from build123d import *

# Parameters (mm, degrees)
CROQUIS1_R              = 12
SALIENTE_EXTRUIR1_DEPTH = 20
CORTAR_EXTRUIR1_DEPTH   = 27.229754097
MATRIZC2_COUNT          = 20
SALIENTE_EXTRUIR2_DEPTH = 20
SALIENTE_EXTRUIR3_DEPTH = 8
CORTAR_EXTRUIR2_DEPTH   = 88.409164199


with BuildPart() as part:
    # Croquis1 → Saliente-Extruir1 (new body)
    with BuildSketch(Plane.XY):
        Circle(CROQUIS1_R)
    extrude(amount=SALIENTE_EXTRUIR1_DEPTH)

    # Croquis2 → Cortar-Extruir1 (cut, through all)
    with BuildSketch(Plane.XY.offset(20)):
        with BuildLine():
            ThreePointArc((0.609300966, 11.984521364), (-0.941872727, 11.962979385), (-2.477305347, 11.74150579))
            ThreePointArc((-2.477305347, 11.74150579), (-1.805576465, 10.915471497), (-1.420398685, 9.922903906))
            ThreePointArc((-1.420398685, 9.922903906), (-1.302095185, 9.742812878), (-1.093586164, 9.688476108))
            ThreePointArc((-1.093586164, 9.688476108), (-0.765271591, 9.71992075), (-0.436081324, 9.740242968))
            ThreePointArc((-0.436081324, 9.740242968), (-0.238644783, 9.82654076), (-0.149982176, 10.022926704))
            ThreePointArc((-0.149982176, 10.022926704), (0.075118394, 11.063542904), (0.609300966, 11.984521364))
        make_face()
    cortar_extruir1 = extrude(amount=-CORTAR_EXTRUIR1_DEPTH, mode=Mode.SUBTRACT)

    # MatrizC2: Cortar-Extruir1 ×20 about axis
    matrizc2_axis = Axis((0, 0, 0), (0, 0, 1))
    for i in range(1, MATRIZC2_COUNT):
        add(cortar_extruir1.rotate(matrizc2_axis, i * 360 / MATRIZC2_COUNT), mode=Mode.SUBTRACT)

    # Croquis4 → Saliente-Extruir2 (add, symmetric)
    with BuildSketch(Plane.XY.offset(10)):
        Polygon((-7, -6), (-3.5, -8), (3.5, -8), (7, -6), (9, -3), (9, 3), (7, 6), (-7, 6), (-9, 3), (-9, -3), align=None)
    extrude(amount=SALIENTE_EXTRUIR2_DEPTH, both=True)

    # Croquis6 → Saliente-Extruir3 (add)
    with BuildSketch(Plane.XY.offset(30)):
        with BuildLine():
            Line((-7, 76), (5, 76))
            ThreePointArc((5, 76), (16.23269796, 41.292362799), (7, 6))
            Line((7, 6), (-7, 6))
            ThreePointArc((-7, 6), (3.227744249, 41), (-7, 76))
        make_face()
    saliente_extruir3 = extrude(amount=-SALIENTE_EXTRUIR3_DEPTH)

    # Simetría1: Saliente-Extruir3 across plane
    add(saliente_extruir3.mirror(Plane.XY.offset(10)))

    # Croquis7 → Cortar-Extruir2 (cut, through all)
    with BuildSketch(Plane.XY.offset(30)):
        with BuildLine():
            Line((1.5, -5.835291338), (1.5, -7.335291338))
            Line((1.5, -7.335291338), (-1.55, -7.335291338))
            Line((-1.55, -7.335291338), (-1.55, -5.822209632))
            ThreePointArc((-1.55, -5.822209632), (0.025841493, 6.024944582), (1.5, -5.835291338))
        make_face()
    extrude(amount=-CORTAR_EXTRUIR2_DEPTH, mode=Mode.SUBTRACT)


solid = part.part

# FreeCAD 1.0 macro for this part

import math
import FreeCAD as App
import Part
import Sketcher


def add_polygon(sketch, points):
    """Adds a closed chain of lines whose ends are joined by coincident constraints."""
    first, n = sketch.GeometryCount, len(points)
    for a, b in zip(points, points[1:] + points[:1]):
        sketch.addGeometry(Part.LineSegment(App.Vector(*a, 0), App.Vector(*b, 0)), False)
    for i in range(n):
        sketch.addConstraint(Sketcher.Constraint("Coincident", first + i, 2, first + (i + 1) % n, 1))

doc = App.newDocument("Part")
params = doc.addObject("Spreadsheet::Sheet", "Params")
for row, (alias, value) in enumerate([
    ("sketch1_diameter", "24 mm"),
    ("pad1_length", "20 mm"),
    ("sketch2_radius", "12 mm"),
    ("sketch2_radius2", "0.3 mm"),
    ("sketch2_radius3", "9.75 mm"),
    ("sketch3_width", "7 mm"),
    ("sketch3_width2", "14 mm"),
    ("sketch3_height", "6 mm"),
    ("pad2_length", "40 mm"),
    ("sketch4_radius", "65 mm"),
    ("sketch4_width", "12 mm"),
    ("sketch4_width2", "14 mm"),
    ("pad3_length", "8 mm"),
    ("sketch5_height", "1.5 mm"),
    ("sketch5_width", "3.05 mm"),
], start=1):
    params.set(f"A{row}", alias)
    params.set(f"B{row}", "=" + value)
    params.setAlias(f"B{row}", alias)

body = doc.addObject("PartDesign::Body", "Body")

sketch1 = body.newObject("Sketcher::SketchObject", "Sketch")
sketch1.AttachmentSupport = (doc.getObject("XY_Plane"), [""])
sketch1.MapMode = "FlatFace"
sketch1.addGeometry(Part.Circle(App.Vector(0, 0, 0), App.Vector(0, 0, 1), 12), False)
sketch1.addConstraint(Sketcher.Constraint("Coincident", 0, 3, -1, 1))
sketch1.addConstraint(Sketcher.Constraint("Diameter", 0, 24.0))
sketch1.setExpression("Constraints[1]", "Params.sketch1_diameter")
pad1 = body.newObject("PartDesign::Pad", "Pad")
pad1.Profile = sketch1
pad1.setExpression("Length", "Params.pad1_length")

sketch2 = body.newObject("Sketcher::SketchObject", "Sketch001")
sketch2.AttachmentSupport = (doc.getObject("XY_Plane"), [""])
sketch2.MapMode = "FlatFace"
sketch2.AttachmentOffset = App.Placement(App.Vector(0, 0, 20), App.Rotation())
sketch2.addGeometry(Part.ArcOfCircle(Part.Circle(App.Vector(0, 0, 0), App.Vector(0, 0, 1), 12), math.radians(87.09), math.radians(101.91)), False)
sketch2.addGeometry(Part.ArcOfCircle(Part.Circle(App.Vector(-4.76, 9.2, 0), App.Vector(0, 0, 1), 3.42), math.radians(12), math.radians(48)), False)
sketch2.addGeometry(Part.ArcOfCircle(Part.Circle(App.Vector(-1.13, 9.99, 0), App.Vector(0, 0, 1), 0.3), math.radians(-168), math.radians(-84)), False)
sketch2.addGeometry(Part.ArcOfCircle(Part.Circle(App.Vector(0, 0, 0), App.Vector(0, 0, 1), 9.75), math.radians(92.56), math.radians(96.44)), False)
sketch2.addGeometry(Part.ArcOfCircle(Part.Circle(App.Vector(-0.45, 10.04, 0), App.Vector(0, 0, 1), 0.3), math.radians(-87), math.radians(-3)), False)
sketch2.addGeometry(Part.ArcOfCircle(Part.Circle(App.Vector(3.26, 9.83, 0), App.Vector(0, 0, 1), 3.42), math.radians(141), math.radians(177)), False)
sketch2.addConstraint(Sketcher.Constraint("Coincident", 0, 2, 1, 2))
sketch2.addConstraint(Sketcher.Constraint("Tangent", 1, 1, 2, 1))
sketch2.addConstraint(Sketcher.Constraint("Tangent", 2, 2, 3, 2))
sketch2.addConstraint(Sketcher.Constraint("Tangent", 3, 1, 4, 1))
sketch2.addConstraint(Sketcher.Constraint("Tangent", 4, 2, 5, 2))
sketch2.addConstraint(Sketcher.Constraint("Coincident", 5, 1, 0, 1))
sketch2.addConstraint(Sketcher.Constraint("Coincident", 0, 3, -1, 1))
sketch2.addConstraint(Sketcher.Constraint("Coincident", 3, 3, -1, 1))
sketch2.addConstraint(Sketcher.Constraint("Equal", 2, 4))
sketch2.addConstraint(Sketcher.Constraint("Equal", 1, 5))
sketch2.addConstraint(Sketcher.Constraint("Radius", 0, 12.0))
sketch2.addConstraint(Sketcher.Constraint("Radius", 2, 0.3))
sketch2.addConstraint(Sketcher.Constraint("Radius", 3, 9.75))
sketch2.addConstraint(Sketcher.Constraint("Radius", 1, 3.420201))
sketch2.addConstraint(Sketcher.Constraint("DistanceX", 4, 3, -1, 1, 0.449499))
sketch2.addConstraint(Sketcher.Constraint("DistanceX", 1, 1, -1, 1, 1.420399))
sketch2.addConstraint(Sketcher.Constraint("DistanceX", -1, 1, 5, 1, 0.609301))
sketch2.addConstraint(Sketcher.Constraint("DistanceY", 1, 1, 0, 2, 1.818602))
sketch2.setExpression("Constraints[10]", "Params.sketch2_radius")
sketch2.setExpression("Constraints[11]", "Params.sketch2_radius2")
sketch2.setExpression("Constraints[12]", "Params.sketch2_radius3")
pocket1 = body.newObject("PartDesign::Pocket", "Pocket")
pocket1.Profile = sketch2
pocket1.Type = "ThroughAll"
doc.recompute()

polarpattern = body.newObject("PartDesign::PolarPattern", "PolarPattern")
polarpattern.Originals = [pocket1]
polarpattern.Axis = (doc.getObject("Z_Axis"), [""])
polarpattern.Angle = 360
polarpattern.Occurrences = 20
body.Tip = polarpattern

sketch3 = body.newObject("Sketcher::SketchObject", "Sketch002")
sketch3.AttachmentSupport = (doc.getObject("XY_Plane"), [""])
sketch3.MapMode = "FlatFace"
sketch3.AttachmentOffset = App.Placement(App.Vector(0, 0, 10), App.Rotation())
add_polygon(sketch3, [(-7, -6), (-3.5, -8), (3.5, -8), (7, -6), (9, -3), (9, 3), (7, 6), (-7, 6), (-9, 3), (-9, -3)])
sketch3.addConstraint(Sketcher.Constraint("Horizontal", 1))
sketch3.addConstraint(Sketcher.Constraint("Vertical", 4))
sketch3.addConstraint(Sketcher.Constraint("Horizontal", 6))
sketch3.addConstraint(Sketcher.Constraint("Vertical", 8))
sketch3.addConstraint(Sketcher.Constraint("Symmetric", 2, 2, 6, 2, -1, 1))
sketch3.addConstraint(Sketcher.Constraint("Symmetric", 3, 2, 7, 2, -1, 1))
sketch3.addConstraint(Sketcher.Constraint("Symmetric", 5, 2, 9, 2, -1, 1))
sketch3.addConstraint(Sketcher.Constraint("Parallel", 5, 9))
sketch3.addConstraint(Sketcher.Constraint("Horizontal", 4, 2, 7, 2))
sketch3.addConstraint(Sketcher.Constraint("Vertical", 2, 2, 5, 2))
sketch3.addConstraint(Sketcher.Constraint("Equal", 0, 2))
sketch3.addConstraint(Sketcher.Constraint("DistanceX", 1, 1, 1, 2, 7.0))
sketch3.addConstraint(Sketcher.Constraint("DistanceX", 6, 2, 6, 1, 14.0))
sketch3.addConstraint(Sketcher.Constraint("DistanceY", 4, 1, 4, 2, 6.0))
sketch3.addConstraint(Sketcher.Constraint("DistanceY", 0, 2, -1, 1, 8.0))
sketch3.addConstraint(Sketcher.Constraint("DistanceY", 2, 2, -1, 1, 6.0))
sketch3.addConstraint(Sketcher.Constraint("DistanceX", -1, 1, 3, 2, 9.0))
sketch3.setExpression("Constraints[21]", "Params.sketch3_width")
sketch3.setExpression("Constraints[22]", "Params.sketch3_width2")
sketch3.setExpression("Constraints[23]", "Params.sketch3_height")
pad2 = body.newObject("PartDesign::Pad", "Pad001")
pad2.Profile = sketch3
pad2.setExpression("Length", "Params.pad2_length")
pad2.Midplane = True

sketch4 = body.newObject("Sketcher::SketchObject", "Sketch003")
sketch4.AttachmentSupport = (doc.getObject("XY_Plane"), [""])
sketch4.MapMode = "FlatFace"
sketch4.AttachmentOffset = App.Placement(App.Vector(0, 0, 30), App.Rotation())
sketch4.addGeometry(Part.LineSegment(App.Vector(5, 76, 0), App.Vector(-7, 76, 0)), False)
sketch4.addGeometry(Part.ArcOfCircle(Part.Circle(App.Vector(-62, 41, 0), App.Vector(0, 0, 1), 65), math.radians(-33), math.radians(33)), False)
sketch4.addGeometry(Part.LineSegment(App.Vector(-7, 6, 0), App.Vector(7, 6, 0)), False)
sketch4.addGeometry(Part.ArcOfCircle(Part.Circle(App.Vector(-49, 39, 0), App.Vector(0, 0, 1), 65), math.radians(-31), math.radians(34)), False)
sketch4.addConstraint(Sketcher.Constraint("Coincident", 0, 2, 1, 2))
sketch4.addConstraint(Sketcher.Constraint("Coincident", 1, 1, 2, 1))
sketch4.addConstraint(Sketcher.Constraint("Coincident", 2, 2, 3, 1))
sketch4.addConstraint(Sketcher.Constraint("Coincident", 3, 2, 0, 1))
sketch4.addConstraint(Sketcher.Constraint("Horizontal", 0))
sketch4.addConstraint(Sketcher.Constraint("Horizontal", 2))
sketch4.addConstraint(Sketcher.Constraint("Equal", 1, 3))
sketch4.addConstraint(Sketcher.Constraint("Vertical", 0, 2, 1, 1))
sketch4.addConstraint(Sketcher.Constraint("Radius", 1, 65.0))
sketch4.addConstraint(Sketcher.Constraint("DistanceX", 0, 2, 0, 1, 12.0))
sketch4.addConstraint(Sketcher.Constraint("DistanceX", 2, 1, 2, 2, 14.0))
sketch4.addConstraint(Sketcher.Constraint("DistanceY", -1, 1, 1, 3, 41.0))
sketch4.addConstraint(Sketcher.Constraint("DistanceX", 0, 2, -1, 1, 7.0))
sketch4.addConstraint(Sketcher.Constraint("DistanceY", -1, 1, 0, 2, 76.0))
sketch4.setExpression("Constraints[8]", "Params.sketch4_radius")
sketch4.setExpression("Constraints[9]", "Params.sketch4_width")
sketch4.setExpression("Constraints[10]", "Params.sketch4_width2")
pad3 = body.newObject("PartDesign::Pad", "Pad002")
pad3.Profile = sketch4
pad3.setExpression("Length", "Params.pad3_length")
pad3.Reversed = True
doc.recompute()

datumplane = body.newObject("PartDesign::Plane", "DatumPlane")
datumplane.AttachmentSupport = (doc.getObject("XY_Plane"), [""])
datumplane.MapMode = "FlatFace"
datumplane.AttachmentOffset = App.Placement(App.Vector(0, 0, 10), App.Rotation())
mirrored = body.newObject("PartDesign::Mirrored", "Mirrored")
mirrored.Originals = [pad3]
mirrored.MirrorPlane = (datumplane, [""])
body.Tip = mirrored

sketch5 = body.newObject("Sketcher::SketchObject", "Sketch004")
sketch5.AttachmentSupport = (doc.getObject("XY_Plane"), [""])
sketch5.MapMode = "FlatFace"
sketch5.AttachmentOffset = App.Placement(App.Vector(0, 0, 30), App.Rotation())
sketch5.addGeometry(Part.LineSegment(App.Vector(1.5, -7.3, 0), App.Vector(1.5, -5.8, 0)), False)
sketch5.addGeometry(Part.ArcOfCircle(Part.Circle(App.Vector(0, 0, 0), App.Vector(0, 0, 1), 6), math.radians(-76), math.radians(255)), False)
sketch5.addGeometry(Part.LineSegment(App.Vector(-1.6, -5.8, 0), App.Vector(-1.6, -7.3, 0)), False)
sketch5.addGeometry(Part.LineSegment(App.Vector(-1.6, -7.3, 0), App.Vector(1.5, -7.3, 0)), False)
sketch5.addConstraint(Sketcher.Constraint("Coincident", 0, 2, 1, 1))
sketch5.addConstraint(Sketcher.Constraint("Coincident", 1, 2, 2, 1))
sketch5.addConstraint(Sketcher.Constraint("Coincident", 2, 2, 3, 1))
sketch5.addConstraint(Sketcher.Constraint("Coincident", 3, 2, 0, 1))
sketch5.addConstraint(Sketcher.Constraint("Vertical", 0))
sketch5.addConstraint(Sketcher.Constraint("Vertical", 2))
sketch5.addConstraint(Sketcher.Constraint("Horizontal", 3))
sketch5.addConstraint(Sketcher.Constraint("Coincident", 1, 3, -1, 1))
sketch5.addConstraint(Sketcher.Constraint("DistanceY", 0, 1, 0, 2, 1.5))
sketch5.addConstraint(Sketcher.Constraint("Radius", 1, 6.025))
sketch5.addConstraint(Sketcher.Constraint("DistanceX", 3, 1, 3, 2, 3.05))
sketch5.addConstraint(Sketcher.Constraint("DistanceX", -1, 1, 0, 2, 1.5))
sketch5.setExpression("Constraints[8]", "Params.sketch5_height")
sketch5.setExpression("Constraints[10]", "Params.sketch5_width")
pocket2 = body.newObject("PartDesign::Pocket", "Pocket001")
pocket2.Profile = sketch5
pocket2.Type = "ThroughAll"

doc.recompute()
